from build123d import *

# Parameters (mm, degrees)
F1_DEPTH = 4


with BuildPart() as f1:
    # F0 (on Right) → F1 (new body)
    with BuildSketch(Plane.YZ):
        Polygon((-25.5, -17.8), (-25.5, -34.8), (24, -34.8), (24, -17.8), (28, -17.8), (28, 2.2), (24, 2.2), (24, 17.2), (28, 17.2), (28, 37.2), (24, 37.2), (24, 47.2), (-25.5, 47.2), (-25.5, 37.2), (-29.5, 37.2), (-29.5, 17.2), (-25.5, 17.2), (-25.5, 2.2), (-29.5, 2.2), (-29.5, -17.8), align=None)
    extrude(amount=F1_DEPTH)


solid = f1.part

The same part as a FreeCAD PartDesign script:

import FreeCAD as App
import Part
import Sketcher
from FreeCAD import Vector


def add_polygon(sketch, points):
    """Adds a closed chain of lines whose ends are joined by coincident constraints."""
    first, n = sketch.GeometryCount, len(points)
    for a, b in zip(points, points[1:] + points[:1]):
        sketch.addGeometry(Part.LineSegment(App.Vector(*a, 0), App.Vector(*b, 0)), False)
    for i in range(n):
        sketch.addConstraint(Sketcher.Constraint("Coincident", first + i, 2, first + (i + 1) % n, 1))

doc = App.newDocument("Part")
body = doc.addObject("PartDesign::Body", "Body")

sketch1 = body.newObject("Sketcher::SketchObject", "Sketch")
sketch1.AttachmentSupport = (doc.getObject("YZ_Plane"), [""])
sketch1.MapMode = "FlatFace"
add_polygon(sketch1, [(-25.5, -17.8), (-25.5, -34.8), (24, -34.8), (24, -17.8), (28, -17.8), (28, 2.2), (24, 2.2), (24, 17.2), (28, 17.2), (28, 37.2), (24, 37.2), (24, 47.2), (-25.5, 47.2), (-25.5, 37.2), (-29.5, 37.2), (-29.5, 17.2), (-25.5, 17.2), (-25.5, 2.2), (-29.5, 2.2), (-29.5, -17.8)])
sketch1.addConstraint(Sketcher.Constraint("Vertical", 0))
sketch1.addConstraint(Sketcher.Constraint("Horizontal", 1))
sketch1.addConstraint(Sketcher.Constraint("Vertical", 2))
sketch1.addConstraint(Sketcher.Constraint("Horizontal", 3))
sketch1.addConstraint(Sketcher.Constraint("Vertical", 4))
sketch1.addConstraint(Sketcher.Constraint("Horizontal", 5))
sketch1.addConstraint(Sketcher.Constraint("Vertical", 6))
sketch1.addConstraint(Sketcher.Constraint("Horizontal", 7))
sketch1.addConstraint(Sketcher.Constraint("Vertical", 8))
sketch1.addConstraint(Sketcher.Constraint("Horizontal", 9))
sketch1.addConstraint(Sketcher.Constraint("Vertical", 10))
sketch1.addConstraint(Sketcher.Constraint("Horizontal", 11))
sketch1.addConstraint(Sketcher.Constraint("Vertical", 12))
sketch1.addConstraint(Sketcher.Constraint("Horizontal", 13))
sketch1.addConstraint(Sketcher.Constraint("Vertical", 14))
sketch1.addConstraint(Sketcher.Constraint("Horizontal", 15))
sketch1.addConstraint(Sketcher.Constraint("Vertical", 16))
sketch1.addConstraint(Sketcher.Constraint("Horizontal", 17))
sketch1.addConstraint(Sketcher.Constraint("Vertical", 18))
sketch1.addConstraint(Sketcher.Constraint("Horizontal", 19))
sketch1.addConstraint(Sketcher.Constraint("Horizontal", 9, 2, 12, 2))
sketch1.addConstraint(Sketcher.Constraint("Horizontal", 7, 2, 14, 2))
sketch1.addConstraint(Sketcher.Constraint("Horizontal", 5, 2, 16, 2))
sketch1.addConstraint(Sketcher.Constraint("Horizontal", 3, 2, 18, 2))
sketch1.addConstraint(Sketcher.Constraint("Vertical", 2, 2, 5, 2))
sketch1.addConstraint(Sketcher.Constraint("Vertical", 4, 2, 7, 2))
sketch1.addConstraint(Sketcher.Constraint("Vertical", 6, 2, 9, 2))
sketch1.addConstraint(Sketcher.Constraint("Vertical", 0, 2, 11, 2))
sketch1.addConstraint(Sketcher.Constraint("Vertical", 12, 2, 15, 2))
sketch1.addConstraint(Sketcher.Constraint("Vertical", 14, 2, 17, 2))
sketch1.addConstraint(Sketcher.Constraint("Equal", 9, 13))
sketch1.addConstraint(Sketcher.Constraint("Equal", 4, 8))
sketch1.addConstraint(Sketcher.Constraint("DistanceX", 3, 1, 3, 2, 4.0))
sketch1.addConstraint(Sketcher.Constraint("DistanceY", 0, 2, 0, 1, 17.0))
sketch1.addConstraint(Sketcher.Constraint("DistanceY", 4, 1, 4, 2, 20.0))
sketch1.addConstraint(Sketcher.Constraint("DistanceY", 6, 1, 6, 2, 15.0))
sketch1.addConstraint(Sketcher.Constraint("DistanceY", 10, 1, 10, 2, 10.0))
sketch1.addConstraint(Sketcher.Constraint("DistanceX", 1, 1, 1, 2, 49.5))
sketch1.addConstraint(Sketcher.Constraint("DistanceX", -1, 1, 1, 2, 24.0))
sketch1.addConstraint(Sketcher.Constraint("DistanceY", 0, 2, -1, 1, 34.8))
pad1 = body.newObject("PartDesign::Pad", "Pad")
pad1.Profile = sketch1
pad1.Length = 4

doc.recompute()
